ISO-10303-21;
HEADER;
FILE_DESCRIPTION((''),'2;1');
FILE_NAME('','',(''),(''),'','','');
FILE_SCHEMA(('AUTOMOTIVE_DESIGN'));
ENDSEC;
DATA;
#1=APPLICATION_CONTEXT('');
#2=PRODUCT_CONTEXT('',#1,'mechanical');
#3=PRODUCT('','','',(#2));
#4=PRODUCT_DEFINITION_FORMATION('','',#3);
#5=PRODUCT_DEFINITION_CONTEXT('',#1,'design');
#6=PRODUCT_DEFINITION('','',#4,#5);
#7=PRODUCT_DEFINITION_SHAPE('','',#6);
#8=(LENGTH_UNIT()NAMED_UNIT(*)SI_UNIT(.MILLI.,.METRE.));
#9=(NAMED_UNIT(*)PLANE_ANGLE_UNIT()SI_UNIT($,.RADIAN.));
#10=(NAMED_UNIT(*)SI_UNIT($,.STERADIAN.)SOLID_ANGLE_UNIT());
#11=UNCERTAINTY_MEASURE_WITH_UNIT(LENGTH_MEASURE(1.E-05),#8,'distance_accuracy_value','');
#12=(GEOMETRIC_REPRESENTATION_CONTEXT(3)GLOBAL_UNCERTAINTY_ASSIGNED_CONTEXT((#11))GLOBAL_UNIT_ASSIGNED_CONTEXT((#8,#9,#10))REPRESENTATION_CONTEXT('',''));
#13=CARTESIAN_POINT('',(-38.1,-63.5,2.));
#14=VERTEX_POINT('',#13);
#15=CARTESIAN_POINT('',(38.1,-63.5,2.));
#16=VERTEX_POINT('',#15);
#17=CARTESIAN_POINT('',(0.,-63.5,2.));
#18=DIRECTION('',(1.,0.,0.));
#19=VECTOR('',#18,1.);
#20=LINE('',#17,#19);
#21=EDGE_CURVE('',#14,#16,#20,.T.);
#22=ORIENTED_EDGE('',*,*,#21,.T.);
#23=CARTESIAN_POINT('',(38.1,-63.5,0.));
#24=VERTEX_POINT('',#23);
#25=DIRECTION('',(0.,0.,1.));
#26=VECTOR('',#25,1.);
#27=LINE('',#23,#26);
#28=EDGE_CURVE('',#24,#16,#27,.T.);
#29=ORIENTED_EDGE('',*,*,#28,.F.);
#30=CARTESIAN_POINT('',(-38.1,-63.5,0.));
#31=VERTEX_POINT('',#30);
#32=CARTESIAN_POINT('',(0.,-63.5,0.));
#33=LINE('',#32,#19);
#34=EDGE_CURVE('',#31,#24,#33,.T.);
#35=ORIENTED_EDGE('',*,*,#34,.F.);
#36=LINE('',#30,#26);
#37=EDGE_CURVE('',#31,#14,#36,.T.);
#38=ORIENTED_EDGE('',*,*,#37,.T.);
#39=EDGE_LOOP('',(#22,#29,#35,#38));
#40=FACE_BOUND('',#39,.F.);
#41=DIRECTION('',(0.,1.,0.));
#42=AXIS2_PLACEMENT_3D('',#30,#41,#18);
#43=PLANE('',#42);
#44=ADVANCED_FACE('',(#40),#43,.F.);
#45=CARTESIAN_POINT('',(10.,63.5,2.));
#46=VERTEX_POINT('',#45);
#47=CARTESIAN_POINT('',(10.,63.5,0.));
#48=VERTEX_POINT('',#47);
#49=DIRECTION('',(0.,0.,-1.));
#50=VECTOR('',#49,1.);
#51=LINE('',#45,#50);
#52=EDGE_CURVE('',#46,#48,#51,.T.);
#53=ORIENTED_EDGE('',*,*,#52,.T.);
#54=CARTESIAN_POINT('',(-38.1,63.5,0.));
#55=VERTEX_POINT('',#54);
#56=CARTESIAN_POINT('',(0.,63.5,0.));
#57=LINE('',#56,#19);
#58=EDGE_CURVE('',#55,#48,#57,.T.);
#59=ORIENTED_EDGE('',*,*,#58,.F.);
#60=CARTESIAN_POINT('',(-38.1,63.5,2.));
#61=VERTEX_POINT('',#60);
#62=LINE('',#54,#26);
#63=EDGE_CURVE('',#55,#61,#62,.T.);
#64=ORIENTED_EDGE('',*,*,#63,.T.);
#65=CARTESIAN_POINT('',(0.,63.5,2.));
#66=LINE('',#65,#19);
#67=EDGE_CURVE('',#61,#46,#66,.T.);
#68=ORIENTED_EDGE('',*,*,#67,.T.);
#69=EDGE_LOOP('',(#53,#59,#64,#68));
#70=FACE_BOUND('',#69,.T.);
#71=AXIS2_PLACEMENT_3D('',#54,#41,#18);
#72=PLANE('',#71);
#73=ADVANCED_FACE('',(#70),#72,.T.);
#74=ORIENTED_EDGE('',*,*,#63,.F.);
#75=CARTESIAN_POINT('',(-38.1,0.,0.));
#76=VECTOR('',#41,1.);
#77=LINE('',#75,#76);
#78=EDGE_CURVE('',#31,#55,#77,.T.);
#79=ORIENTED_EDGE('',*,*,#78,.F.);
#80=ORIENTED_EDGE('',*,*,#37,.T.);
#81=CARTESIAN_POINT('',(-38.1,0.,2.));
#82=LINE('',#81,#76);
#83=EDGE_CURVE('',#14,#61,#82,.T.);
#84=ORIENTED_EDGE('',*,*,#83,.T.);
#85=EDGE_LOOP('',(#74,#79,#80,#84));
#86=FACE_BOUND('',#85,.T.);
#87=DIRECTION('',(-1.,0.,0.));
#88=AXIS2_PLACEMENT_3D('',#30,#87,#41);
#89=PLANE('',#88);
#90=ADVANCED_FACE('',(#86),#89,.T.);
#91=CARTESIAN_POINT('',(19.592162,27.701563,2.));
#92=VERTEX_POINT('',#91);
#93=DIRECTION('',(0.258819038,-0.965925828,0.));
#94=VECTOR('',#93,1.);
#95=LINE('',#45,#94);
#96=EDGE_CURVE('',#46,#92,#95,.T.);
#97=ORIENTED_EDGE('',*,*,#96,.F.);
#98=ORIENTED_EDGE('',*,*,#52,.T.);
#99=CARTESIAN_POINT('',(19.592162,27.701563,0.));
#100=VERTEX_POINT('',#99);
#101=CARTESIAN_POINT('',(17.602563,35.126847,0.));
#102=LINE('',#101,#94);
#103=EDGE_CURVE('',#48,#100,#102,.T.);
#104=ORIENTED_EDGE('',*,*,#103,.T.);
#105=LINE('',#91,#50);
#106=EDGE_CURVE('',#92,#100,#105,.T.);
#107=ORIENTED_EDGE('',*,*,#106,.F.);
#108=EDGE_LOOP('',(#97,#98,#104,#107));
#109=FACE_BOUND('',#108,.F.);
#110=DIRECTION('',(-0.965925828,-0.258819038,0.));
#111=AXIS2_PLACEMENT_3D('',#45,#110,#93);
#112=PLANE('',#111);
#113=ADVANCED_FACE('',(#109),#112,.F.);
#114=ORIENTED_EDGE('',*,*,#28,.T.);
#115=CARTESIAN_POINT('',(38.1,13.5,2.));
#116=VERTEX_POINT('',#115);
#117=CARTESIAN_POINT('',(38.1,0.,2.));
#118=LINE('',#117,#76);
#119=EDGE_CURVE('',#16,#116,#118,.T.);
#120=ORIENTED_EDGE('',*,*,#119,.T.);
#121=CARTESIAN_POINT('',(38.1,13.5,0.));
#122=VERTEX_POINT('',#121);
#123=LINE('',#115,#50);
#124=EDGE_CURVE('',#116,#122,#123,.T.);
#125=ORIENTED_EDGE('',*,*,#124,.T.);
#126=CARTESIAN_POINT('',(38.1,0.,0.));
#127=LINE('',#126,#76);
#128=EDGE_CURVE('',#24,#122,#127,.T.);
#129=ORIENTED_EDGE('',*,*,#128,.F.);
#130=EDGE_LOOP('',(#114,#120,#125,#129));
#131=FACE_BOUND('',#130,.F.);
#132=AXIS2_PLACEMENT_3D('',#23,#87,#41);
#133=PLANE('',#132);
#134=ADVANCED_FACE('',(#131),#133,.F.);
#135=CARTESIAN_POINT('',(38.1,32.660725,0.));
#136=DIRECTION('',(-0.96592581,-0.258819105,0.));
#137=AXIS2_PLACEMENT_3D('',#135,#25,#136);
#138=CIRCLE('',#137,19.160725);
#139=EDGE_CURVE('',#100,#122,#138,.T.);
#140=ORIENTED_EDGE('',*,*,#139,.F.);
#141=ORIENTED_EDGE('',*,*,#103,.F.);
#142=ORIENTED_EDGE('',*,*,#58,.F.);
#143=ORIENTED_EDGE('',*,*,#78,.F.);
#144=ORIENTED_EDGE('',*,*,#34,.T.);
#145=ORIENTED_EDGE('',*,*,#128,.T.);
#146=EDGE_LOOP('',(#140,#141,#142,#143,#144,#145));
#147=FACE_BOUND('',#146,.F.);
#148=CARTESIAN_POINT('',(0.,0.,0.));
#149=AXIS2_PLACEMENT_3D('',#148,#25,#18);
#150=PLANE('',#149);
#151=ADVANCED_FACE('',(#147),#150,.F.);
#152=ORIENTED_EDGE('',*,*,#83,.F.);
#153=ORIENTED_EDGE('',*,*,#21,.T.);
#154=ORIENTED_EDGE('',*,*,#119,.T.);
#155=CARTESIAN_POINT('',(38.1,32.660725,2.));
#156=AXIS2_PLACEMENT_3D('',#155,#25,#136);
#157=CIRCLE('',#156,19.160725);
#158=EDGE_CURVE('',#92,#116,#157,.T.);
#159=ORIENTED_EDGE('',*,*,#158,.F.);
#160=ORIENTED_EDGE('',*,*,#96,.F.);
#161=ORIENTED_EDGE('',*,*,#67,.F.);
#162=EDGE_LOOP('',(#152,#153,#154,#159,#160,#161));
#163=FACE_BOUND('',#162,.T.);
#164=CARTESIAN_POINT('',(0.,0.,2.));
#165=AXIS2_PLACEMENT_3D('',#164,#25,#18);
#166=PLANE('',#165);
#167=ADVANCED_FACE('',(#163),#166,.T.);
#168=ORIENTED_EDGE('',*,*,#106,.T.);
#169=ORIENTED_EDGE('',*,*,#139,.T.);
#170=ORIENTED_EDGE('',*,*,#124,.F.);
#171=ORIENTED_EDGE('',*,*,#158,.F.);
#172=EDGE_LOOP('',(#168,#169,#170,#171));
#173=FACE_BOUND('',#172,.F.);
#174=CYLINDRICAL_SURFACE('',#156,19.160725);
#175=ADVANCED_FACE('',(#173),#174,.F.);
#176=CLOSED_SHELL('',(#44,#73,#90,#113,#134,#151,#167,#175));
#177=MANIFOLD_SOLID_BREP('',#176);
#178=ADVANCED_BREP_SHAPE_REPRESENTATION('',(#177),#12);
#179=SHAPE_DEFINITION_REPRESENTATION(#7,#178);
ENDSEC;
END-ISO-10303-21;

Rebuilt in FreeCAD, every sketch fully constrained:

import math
import FreeCAD as App
import Part
import Sketcher
from FreeCAD import Vector
Q = App.Units.Quantity


def add_polygon(sketch, points):
    """Adds a closed chain of lines whose ends are joined by coincident constraints."""
    first, n = sketch.GeometryCount, len(points)
    for a, b in zip(points, points[1:] + points[:1]):
        sketch.addGeometry(Part.LineSegment(App.Vector(*a, 0), App.Vector(*b, 0)), False)
    for i in range(n):
        sketch.addConstraint(Sketcher.Constraint("Coincident", first + i, 2, first + (i + 1) % n, 1))

doc = App.newDocument("Part")
body = doc.addObject("PartDesign::Body", "Body")

# Sketch on XY plane
sketch1 = body.newObject("Sketcher::SketchObject", "Sketch")
sketch1.AttachmentSupport = (doc.getObject("XY_Plane"), [""])
sketch1.MapMode = "FlatFace"
add_polygon(sketch1, [(-38.1, 63.5), (-38.1, -63.5), (38.1, -63.5), (38.1, 63.5)])  # lines 0-3
sketch1.addConstraint([
    Sketcher.Constraint("Vertical", 0),
    Sketcher.Constraint("Horizontal", 1),
    Sketcher.Constraint("Vertical", 2),
    Sketcher.Constraint("Horizontal", 3),
    Sketcher.Constraint("Symmetric", 0, 2, 2, 2, -1, 1),
    Sketcher.Constraint("DistanceY", 0, 2, 0, 1, 127.0),
    Sketcher.Constraint("DistanceX", 1, 1, 1, 2, 76.2),
])
pad1 = body.newObject("PartDesign::Pad", "Pad")
pad1.Profile = sketch1
pad1.Length = 2

# Sketch on XY plane
sketch2 = body.newObject("Sketcher::SketchObject", "Sketch001")
sketch2.AttachmentSupport = (doc.getObject("XY_Plane"), [""])
sketch2.MapMode = "FlatFace"
sketch2.AttachmentOffset = App.Placement(Vector(0, 0, 2), App.Rotation())
sketch2.addGeometry([
    Part.LineSegment(Vector(38.1, 63.5, 0), Vector(10, 63.5, 0)),
    Part.LineSegment(Vector(10, 63.5, 0), Vector(19.592162, 27.701563, 0)),
    Part.ArcOfCircle(Part.Circle(Vector(38.1, 32.660725, 0), Vector(0, 0, 1), 19.160725), math.radians(-164.999996), math.radians(-90.000001)),
    Part.LineSegment(Vector(38.1, 13.5, 0), Vector(38.1, 63.5, 0)),
], False)
sketch2.addConstraint([
    Sketcher.Constraint("Coincident", 0, 2, 1, 1),
    Sketcher.Constraint("Tangent", 1, 2, 2, 1),
    Sketcher.Constraint("Coincident", 2, 2, 3, 1),
    Sketcher.Constraint("Coincident", 3, 2, 0, 1),
    Sketcher.Constraint("Horizontal", 0),
    Sketcher.Constraint("Vertical", 3),
    Sketcher.Constraint("DistanceY", 3, 1, 3, 2, 50.0),
    Sketcher.Constraint("Angle", 1, Q("-75 deg")),
    Sketcher.Constraint("DistanceX", 0, 2, 0, 1, 28.1),
    Sketcher.Constraint("DistanceX", -1, 1, 0, 2, 10.0),
    Sketcher.Constraint("DistanceX", -1, 1, 2, 3, 38.1),
    Sketcher.Constraint("DistanceY", -1, 1, 0, 2, 63.5),
])
pocket1 = body.newObject("PartDesign::Pocket", "Pocket")
pocket1.Profile = sketch2
pocket1.Length = 25

doc.recompute()
